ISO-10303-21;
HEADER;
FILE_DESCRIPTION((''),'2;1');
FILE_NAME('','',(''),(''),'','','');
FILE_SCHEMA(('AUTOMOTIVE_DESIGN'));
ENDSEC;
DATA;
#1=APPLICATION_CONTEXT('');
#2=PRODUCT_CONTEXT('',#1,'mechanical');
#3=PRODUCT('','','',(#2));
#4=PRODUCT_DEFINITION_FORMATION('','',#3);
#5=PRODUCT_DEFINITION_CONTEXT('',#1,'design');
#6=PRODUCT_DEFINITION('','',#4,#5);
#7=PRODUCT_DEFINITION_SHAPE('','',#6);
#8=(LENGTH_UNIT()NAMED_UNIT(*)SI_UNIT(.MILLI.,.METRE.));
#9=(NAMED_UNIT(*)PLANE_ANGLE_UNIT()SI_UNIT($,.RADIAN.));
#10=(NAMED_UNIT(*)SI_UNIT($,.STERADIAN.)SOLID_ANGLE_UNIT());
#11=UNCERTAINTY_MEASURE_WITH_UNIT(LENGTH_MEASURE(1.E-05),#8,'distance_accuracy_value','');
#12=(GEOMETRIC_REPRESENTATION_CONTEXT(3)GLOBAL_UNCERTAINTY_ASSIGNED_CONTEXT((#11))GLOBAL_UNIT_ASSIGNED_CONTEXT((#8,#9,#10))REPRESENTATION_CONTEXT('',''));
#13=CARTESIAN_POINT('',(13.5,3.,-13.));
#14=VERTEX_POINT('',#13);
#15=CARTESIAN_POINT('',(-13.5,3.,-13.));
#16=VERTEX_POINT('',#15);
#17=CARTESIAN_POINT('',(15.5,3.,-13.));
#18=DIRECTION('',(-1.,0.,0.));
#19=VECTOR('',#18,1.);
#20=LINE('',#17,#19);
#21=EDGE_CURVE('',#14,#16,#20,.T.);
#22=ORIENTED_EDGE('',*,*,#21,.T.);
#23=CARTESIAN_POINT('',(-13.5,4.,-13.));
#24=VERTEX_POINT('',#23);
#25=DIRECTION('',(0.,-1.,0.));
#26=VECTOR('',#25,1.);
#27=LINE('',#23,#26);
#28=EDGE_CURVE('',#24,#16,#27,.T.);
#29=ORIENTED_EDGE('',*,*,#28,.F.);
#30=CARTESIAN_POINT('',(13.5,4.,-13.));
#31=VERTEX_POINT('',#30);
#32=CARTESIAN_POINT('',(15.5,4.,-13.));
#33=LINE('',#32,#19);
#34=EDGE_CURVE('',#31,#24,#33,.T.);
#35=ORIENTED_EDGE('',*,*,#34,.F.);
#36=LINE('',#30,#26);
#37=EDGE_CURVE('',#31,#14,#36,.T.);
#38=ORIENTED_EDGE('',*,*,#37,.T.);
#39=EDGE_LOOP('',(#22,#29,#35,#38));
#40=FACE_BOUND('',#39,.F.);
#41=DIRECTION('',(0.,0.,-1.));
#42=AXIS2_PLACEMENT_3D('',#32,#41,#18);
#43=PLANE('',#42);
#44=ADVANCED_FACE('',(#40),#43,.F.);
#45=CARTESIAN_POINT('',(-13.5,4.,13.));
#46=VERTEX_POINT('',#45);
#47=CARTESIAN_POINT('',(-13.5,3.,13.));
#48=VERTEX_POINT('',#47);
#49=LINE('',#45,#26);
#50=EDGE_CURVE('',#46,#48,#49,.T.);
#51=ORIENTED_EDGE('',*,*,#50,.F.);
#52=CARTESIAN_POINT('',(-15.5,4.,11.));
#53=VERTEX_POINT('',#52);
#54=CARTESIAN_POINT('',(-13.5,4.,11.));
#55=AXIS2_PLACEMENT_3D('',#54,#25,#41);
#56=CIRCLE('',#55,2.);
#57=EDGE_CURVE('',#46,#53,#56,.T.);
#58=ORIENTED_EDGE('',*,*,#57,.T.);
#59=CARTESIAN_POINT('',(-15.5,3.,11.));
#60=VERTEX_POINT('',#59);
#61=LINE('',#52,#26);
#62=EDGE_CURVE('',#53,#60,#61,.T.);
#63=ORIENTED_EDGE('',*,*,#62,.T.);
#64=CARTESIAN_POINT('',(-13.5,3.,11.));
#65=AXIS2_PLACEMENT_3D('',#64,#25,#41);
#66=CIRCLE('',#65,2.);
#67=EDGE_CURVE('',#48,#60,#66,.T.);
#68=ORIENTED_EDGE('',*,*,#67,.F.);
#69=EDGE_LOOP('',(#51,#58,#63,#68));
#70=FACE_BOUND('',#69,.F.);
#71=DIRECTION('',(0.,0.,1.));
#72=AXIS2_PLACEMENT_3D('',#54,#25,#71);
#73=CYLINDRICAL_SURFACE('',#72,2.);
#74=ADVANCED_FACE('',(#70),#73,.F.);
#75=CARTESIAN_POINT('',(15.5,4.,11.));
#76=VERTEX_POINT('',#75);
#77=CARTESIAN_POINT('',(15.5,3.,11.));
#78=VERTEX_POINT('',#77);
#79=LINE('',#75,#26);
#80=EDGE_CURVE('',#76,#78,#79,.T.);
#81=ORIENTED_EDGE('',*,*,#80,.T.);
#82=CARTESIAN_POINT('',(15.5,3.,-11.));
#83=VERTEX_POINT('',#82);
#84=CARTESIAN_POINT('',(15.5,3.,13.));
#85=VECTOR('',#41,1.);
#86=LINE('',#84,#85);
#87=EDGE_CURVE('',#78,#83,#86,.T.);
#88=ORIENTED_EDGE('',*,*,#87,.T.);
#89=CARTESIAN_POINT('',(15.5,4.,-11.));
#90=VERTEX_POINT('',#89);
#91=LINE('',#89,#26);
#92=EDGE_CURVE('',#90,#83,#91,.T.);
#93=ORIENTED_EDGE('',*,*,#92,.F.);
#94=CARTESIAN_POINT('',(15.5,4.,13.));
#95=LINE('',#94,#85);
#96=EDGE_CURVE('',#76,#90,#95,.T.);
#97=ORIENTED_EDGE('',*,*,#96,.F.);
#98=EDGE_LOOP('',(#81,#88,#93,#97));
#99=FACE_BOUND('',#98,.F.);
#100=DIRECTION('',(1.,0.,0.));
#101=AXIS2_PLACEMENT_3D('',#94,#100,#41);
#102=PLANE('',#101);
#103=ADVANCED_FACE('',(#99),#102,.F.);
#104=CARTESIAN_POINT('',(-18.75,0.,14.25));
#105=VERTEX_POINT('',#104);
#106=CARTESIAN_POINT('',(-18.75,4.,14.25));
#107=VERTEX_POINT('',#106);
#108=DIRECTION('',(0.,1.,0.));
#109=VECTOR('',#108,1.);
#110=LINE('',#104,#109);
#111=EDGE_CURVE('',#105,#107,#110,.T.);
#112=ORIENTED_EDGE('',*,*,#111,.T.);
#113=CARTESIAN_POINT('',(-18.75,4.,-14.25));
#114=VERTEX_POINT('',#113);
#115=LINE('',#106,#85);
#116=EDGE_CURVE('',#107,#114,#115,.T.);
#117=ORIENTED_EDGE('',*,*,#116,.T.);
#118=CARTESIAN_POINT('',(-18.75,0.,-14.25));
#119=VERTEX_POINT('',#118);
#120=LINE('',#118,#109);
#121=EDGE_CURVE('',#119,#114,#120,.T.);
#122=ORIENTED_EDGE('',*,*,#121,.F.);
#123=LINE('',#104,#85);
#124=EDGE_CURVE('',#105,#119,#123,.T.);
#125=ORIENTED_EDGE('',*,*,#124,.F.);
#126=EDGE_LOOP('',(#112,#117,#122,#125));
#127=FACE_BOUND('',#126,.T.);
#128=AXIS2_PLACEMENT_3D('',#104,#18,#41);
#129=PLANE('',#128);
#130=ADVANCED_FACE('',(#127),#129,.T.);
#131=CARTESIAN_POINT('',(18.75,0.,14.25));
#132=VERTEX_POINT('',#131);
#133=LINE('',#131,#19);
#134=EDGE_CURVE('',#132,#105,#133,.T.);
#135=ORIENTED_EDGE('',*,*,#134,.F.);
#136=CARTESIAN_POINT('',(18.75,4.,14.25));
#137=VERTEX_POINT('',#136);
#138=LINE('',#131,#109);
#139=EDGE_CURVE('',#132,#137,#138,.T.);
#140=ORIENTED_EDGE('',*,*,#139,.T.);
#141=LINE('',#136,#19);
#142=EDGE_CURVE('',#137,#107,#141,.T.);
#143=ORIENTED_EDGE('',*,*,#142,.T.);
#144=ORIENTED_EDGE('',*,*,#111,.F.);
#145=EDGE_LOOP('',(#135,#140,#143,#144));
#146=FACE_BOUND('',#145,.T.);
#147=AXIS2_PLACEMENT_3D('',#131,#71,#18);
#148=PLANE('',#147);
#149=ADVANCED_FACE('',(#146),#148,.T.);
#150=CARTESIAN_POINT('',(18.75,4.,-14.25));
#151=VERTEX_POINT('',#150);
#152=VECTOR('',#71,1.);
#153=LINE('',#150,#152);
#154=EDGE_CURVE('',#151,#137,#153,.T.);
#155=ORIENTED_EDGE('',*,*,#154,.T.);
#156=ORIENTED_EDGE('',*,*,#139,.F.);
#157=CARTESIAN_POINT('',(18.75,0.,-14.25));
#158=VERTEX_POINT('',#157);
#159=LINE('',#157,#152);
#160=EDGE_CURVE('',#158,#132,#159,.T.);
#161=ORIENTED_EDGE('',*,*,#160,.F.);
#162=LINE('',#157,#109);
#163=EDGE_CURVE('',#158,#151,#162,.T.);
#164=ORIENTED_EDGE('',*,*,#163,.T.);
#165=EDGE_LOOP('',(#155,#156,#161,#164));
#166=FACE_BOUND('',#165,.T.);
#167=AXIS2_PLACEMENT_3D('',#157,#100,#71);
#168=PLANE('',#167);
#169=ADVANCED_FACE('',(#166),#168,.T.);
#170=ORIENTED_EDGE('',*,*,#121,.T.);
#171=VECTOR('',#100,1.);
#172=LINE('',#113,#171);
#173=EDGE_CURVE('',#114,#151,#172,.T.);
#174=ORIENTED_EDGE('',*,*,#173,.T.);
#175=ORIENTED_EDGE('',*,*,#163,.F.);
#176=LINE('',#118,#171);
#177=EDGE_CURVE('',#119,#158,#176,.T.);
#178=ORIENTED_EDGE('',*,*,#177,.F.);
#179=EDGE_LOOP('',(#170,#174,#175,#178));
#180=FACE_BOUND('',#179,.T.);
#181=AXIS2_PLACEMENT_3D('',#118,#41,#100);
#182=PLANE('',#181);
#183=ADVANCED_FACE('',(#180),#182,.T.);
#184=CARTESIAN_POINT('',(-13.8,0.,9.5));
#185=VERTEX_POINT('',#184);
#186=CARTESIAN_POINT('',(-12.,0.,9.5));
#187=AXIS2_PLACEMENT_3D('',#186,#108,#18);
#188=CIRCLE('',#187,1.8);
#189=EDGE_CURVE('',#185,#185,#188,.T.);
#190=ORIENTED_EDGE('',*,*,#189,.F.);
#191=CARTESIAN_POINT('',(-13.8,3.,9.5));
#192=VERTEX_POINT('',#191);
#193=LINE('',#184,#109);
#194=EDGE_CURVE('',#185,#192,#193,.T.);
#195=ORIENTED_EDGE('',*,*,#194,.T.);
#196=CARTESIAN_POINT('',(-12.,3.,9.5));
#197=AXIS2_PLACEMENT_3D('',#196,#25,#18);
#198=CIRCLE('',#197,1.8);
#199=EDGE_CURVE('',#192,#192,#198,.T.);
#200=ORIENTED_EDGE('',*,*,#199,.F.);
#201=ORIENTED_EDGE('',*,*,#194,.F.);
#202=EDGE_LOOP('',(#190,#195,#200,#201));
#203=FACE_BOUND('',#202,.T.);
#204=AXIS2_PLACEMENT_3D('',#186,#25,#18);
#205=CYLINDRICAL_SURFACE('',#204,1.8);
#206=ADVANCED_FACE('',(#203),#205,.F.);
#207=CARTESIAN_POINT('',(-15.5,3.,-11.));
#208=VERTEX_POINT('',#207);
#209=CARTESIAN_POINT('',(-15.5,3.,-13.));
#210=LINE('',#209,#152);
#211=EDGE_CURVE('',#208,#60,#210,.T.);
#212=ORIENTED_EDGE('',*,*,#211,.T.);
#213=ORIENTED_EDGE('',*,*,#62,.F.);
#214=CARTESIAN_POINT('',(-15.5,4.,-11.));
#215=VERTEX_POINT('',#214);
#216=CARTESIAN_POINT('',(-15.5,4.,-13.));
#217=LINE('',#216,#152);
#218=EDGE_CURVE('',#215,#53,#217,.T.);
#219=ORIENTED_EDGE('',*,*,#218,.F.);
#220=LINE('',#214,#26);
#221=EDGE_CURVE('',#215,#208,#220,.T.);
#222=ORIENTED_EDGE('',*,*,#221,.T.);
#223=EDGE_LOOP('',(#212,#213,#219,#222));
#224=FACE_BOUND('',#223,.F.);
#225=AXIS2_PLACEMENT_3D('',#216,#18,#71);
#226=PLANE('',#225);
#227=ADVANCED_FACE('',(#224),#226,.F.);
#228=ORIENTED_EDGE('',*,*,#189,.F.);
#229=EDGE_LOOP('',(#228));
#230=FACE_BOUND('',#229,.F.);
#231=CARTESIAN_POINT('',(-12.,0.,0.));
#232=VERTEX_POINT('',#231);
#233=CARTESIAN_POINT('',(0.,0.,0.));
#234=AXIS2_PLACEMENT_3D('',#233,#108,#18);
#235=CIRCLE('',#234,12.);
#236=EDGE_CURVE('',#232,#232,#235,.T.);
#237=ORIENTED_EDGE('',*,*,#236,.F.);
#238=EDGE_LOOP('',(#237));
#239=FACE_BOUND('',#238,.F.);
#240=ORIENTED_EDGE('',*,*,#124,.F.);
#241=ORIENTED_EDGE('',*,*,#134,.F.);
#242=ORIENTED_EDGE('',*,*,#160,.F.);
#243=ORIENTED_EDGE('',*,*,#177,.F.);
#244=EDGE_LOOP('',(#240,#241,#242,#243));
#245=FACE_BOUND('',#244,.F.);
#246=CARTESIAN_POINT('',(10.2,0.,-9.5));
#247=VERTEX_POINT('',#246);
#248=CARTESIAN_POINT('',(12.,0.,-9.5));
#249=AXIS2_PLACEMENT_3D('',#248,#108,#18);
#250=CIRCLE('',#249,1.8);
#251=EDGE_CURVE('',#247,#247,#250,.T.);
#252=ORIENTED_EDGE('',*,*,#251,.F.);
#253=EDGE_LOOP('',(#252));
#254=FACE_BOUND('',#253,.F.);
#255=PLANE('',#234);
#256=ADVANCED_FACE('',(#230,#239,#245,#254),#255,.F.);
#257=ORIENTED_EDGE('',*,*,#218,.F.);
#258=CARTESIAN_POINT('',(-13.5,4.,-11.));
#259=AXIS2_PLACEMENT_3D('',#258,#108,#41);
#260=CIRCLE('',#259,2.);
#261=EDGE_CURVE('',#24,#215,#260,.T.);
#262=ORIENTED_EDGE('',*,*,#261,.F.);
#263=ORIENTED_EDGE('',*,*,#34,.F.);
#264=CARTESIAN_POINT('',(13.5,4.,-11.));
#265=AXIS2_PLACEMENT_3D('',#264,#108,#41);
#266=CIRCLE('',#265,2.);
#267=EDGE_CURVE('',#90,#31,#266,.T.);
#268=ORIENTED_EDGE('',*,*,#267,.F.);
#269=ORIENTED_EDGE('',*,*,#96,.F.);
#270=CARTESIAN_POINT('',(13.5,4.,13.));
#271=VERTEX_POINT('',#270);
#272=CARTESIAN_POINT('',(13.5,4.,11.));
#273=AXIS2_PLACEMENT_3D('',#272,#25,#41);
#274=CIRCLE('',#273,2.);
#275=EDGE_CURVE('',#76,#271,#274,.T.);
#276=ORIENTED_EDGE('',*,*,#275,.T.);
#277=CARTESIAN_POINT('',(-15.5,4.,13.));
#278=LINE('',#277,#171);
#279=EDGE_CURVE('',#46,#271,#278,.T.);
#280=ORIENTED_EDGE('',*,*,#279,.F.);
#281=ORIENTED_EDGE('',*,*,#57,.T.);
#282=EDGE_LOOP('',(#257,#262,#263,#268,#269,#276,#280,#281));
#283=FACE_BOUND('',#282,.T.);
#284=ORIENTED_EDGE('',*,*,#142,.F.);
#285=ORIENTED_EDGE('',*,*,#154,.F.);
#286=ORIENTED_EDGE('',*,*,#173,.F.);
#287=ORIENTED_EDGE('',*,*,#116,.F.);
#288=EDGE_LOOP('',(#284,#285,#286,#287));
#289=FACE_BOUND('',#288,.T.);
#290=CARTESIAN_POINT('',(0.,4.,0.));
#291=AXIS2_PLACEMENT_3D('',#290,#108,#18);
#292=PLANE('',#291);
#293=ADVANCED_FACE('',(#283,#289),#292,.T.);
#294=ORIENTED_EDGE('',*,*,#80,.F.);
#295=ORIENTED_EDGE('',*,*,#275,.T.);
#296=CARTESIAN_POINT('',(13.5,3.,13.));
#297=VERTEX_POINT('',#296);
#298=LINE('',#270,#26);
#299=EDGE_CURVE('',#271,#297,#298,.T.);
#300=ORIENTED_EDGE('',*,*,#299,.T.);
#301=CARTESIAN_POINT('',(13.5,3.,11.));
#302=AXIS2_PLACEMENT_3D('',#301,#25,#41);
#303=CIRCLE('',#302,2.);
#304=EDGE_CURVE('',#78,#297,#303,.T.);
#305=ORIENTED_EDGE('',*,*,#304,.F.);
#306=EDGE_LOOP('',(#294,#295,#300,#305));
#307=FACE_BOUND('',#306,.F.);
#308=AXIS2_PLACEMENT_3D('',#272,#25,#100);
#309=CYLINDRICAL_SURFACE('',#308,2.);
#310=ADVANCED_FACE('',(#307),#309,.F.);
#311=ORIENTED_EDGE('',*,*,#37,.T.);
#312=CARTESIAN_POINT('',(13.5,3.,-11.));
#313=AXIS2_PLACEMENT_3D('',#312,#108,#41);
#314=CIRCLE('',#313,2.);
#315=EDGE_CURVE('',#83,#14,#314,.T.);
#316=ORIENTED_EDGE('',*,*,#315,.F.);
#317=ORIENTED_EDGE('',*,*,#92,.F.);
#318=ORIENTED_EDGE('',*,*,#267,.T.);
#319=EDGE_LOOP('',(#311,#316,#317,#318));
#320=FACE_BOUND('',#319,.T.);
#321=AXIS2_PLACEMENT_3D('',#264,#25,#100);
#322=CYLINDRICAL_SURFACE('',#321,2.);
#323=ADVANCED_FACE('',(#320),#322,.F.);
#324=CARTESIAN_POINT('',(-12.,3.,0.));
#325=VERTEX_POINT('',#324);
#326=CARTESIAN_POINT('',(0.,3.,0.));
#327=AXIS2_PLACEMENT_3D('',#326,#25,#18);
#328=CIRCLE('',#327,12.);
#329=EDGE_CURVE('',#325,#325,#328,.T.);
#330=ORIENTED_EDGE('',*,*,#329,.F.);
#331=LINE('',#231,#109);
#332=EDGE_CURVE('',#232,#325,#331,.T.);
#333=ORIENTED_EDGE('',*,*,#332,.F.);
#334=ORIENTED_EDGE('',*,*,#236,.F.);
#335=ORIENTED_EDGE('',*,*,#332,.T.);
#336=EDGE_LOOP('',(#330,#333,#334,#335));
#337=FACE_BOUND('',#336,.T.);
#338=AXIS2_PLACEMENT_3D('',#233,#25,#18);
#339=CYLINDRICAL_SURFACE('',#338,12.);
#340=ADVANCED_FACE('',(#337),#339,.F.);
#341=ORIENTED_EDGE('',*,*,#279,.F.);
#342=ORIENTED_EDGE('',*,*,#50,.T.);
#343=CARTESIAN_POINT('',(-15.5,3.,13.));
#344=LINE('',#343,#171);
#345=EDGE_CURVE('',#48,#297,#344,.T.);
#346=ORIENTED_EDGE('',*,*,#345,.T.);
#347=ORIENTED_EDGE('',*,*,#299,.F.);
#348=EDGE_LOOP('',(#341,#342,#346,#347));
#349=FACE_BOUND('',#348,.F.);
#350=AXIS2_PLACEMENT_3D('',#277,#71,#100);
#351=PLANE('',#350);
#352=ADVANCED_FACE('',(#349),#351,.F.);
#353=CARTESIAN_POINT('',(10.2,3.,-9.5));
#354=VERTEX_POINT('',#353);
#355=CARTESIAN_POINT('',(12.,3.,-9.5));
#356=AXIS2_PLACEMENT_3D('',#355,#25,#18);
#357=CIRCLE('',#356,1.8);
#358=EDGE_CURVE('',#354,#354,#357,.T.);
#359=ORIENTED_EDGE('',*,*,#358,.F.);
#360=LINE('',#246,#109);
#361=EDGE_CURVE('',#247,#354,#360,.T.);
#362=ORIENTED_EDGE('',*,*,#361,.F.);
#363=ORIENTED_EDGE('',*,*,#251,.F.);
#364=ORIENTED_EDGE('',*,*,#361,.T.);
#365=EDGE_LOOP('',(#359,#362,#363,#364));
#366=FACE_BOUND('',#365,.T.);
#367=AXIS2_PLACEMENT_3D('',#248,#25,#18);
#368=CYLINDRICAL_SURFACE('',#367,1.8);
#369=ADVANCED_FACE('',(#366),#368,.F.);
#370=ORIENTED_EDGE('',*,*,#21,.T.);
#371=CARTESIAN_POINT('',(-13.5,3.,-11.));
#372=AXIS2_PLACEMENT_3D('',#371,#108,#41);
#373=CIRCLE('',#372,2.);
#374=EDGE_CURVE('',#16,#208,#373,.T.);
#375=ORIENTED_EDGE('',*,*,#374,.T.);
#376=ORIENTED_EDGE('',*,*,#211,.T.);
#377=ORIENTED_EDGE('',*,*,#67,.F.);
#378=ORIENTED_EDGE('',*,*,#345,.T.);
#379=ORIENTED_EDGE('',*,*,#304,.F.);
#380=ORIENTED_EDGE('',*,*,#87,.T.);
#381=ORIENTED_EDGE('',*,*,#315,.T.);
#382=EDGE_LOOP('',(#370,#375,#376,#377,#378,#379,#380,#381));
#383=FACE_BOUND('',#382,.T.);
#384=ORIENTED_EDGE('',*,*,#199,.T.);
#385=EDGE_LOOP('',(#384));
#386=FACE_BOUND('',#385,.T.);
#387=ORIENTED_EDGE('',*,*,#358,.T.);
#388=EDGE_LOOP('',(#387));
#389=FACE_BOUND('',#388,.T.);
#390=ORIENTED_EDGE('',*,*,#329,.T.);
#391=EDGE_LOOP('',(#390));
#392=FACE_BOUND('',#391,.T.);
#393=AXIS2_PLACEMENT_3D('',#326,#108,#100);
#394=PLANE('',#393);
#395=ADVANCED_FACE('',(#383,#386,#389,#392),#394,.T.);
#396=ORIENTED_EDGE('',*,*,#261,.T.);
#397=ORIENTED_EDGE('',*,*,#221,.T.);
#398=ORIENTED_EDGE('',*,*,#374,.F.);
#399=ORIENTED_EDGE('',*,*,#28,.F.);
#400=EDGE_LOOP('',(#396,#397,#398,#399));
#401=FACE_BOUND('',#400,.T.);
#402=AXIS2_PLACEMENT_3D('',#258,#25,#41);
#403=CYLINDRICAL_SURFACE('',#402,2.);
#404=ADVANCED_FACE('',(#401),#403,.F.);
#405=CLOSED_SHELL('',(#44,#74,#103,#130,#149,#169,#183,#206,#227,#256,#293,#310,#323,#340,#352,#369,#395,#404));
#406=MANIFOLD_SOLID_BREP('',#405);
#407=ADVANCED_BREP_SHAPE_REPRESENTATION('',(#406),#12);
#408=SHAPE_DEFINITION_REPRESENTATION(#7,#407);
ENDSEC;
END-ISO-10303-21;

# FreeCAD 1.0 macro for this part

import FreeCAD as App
import Part
import Sketcher

V = App.Vector
Q = App.Units.Quantity


def edges_at(feature, points):
    """Names of the edges that pass closest to the given points."""
    edges = feature.Shape.Edges
    near = lambda p: min(range(len(edges)), key=lambda i: edges[i].distToShape(Part.Vertex(*p))[0])
    return sorted({f"Edge{near(p) + 1}" for p in points})

doc = App.newDocument("Part")
params = doc.addObject("Spreadsheet::Sheet", "Params")
for row, (alias, value) in enumerate([
    ("sketch1_diameter", "24 mm"),
    ("sketch1_diameter2", "3.6 mm"),
    ("sketch1_width", "37.5 mm"),
    ("sketch1_height", "28.5 mm"),
    ("pad1_length", "4 mm"),
    ("sketch2_width", "31 mm"),
    ("sketch2_height", "26 mm"),
    ("pocket1_length", "1 mm"),
    ("fillet_radius", "2 mm"),
], start=1):
    params.set(f"A{row}", alias)
    params.set(f"B{row}", "=" + value)
    params.setAlias(f"B{row}", alias)

body = doc.addObject("PartDesign::Body", "Body")

sketch1 = doc.addObject("Sketcher::SketchObject", "Sketch")
body.addObject(sketch1)
sketch1.AttachmentSupport = (doc.XZ_Plane, [""])
sketch1.MapMode = "FlatFace"
sketch1.addGeometry(Part.LineSegment(V(18.8, -14.2, 0), V(-18.8, -14.2, 0)), False)
sketch1.addGeometry(Part.LineSegment(V(-18.8, -14.2, 0), V(-18.8, 14.2, 0)), False)
sketch1.addGeometry(Part.LineSegment(V(-18.8, 14.2, 0), V(18.8, 14.2, 0)), False)
sketch1.addGeometry(Part.LineSegment(V(18.8, 14.2, 0), V(18.8, -14.2, 0)), False)
sketch1.addGeometry(Part.Circle(V(12, -9.5, 0), V(0, 0, 1), 1.8), False)
sketch1.addGeometry(Part.Circle(V(0, 0, 0), V(0, 0, 1), 12), False)
sketch1.addGeometry(Part.Circle(V(-12, 9.5, 0), V(0, 0, 1), 1.8), False)
sketch1.addConstraint(Sketcher.Constraint("Coincident", 0, 2, 1, 1))
sketch1.addConstraint(Sketcher.Constraint("Coincident", 1, 2, 2, 1))
sketch1.addConstraint(Sketcher.Constraint("Coincident", 2, 2, 3, 1))
sketch1.addConstraint(Sketcher.Constraint("Coincident", 3, 2, 0, 1))
sketch1.addConstraint(Sketcher.Constraint("Horizontal", 0))
sketch1.addConstraint(Sketcher.Constraint("Vertical", 1))
sketch1.addConstraint(Sketcher.Constraint("Horizontal", 2))
sketch1.addConstraint(Sketcher.Constraint("Vertical", 3))
sketch1.addConstraint(Sketcher.Constraint("Coincident", 5, 3, -1, 1))
sketch1.addConstraint(Sketcher.Constraint("Equal", 4, 6))
sketch1.addConstraint(Sketcher.Constraint("Symmetric", 4, 3, 6, 3, -1, 1))
sketch1.addConstraint(Sketcher.Constraint("Symmetric", 0, 2, 2, 2, -1, 1))
sketch1.addConstraint(Sketcher.Constraint("Diameter", 5, Q("24 mm")))
sketch1.addConstraint(Sketcher.Constraint("Diameter", 4, Q("3.6 mm")))
sketch1.addConstraint(Sketcher.Constraint("DistanceX", 0, 2, 0, 1, Q("37.5 mm")))
sketch1.addConstraint(Sketcher.Constraint("DistanceY", 1, 1, 1, 2, Q("28.5 mm")))
sketch1.addConstraint(Sketcher.Constraint("DistanceX", -1, 1, 4, 3, Q("12 mm")))
sketch1.addConstraint(Sketcher.Constraint("DistanceY", 4, 3, -1, 1, Q("9.5 mm")))
sketch1.setExpression("Constraints[12]", "Params.sketch1_diameter")
sketch1.setExpression("Constraints[13]", "Params.sketch1_diameter2")
sketch1.setExpression("Constraints[14]", "Params.sketch1_width")
sketch1.setExpression("Constraints[15]", "Params.sketch1_height")
pad1 = doc.addObject("PartDesign::Pad", "Pad")
body.addObject(pad1)
pad1.Profile = sketch1
pad1.setExpression("Length", "Params.pad1_length")
pad1.Reversed = True

sketch2 = doc.addObject("Sketcher::SketchObject", "Sketch001")
body.addObject(sketch2)
sketch2.AttachmentSupport = (doc.XZ_Plane, [""])
sketch2.MapMode = "FlatFace"
sketch2.AttachmentOffset = App.Placement(V(0, 0, -4), App.Rotation())
sketch2.addGeometry(Part.LineSegment(V(16, 13, 0), V(16, -13, 0)), False)
sketch2.addGeometry(Part.LineSegment(V(16, -13, 0), V(-16, -13, 0)), False)
sketch2.addGeometry(Part.LineSegment(V(-16, -13, 0), V(-16, 13, 0)), False)
sketch2.addGeometry(Part.LineSegment(V(-16, 13, 0), V(16, 13, 0)), False)
sketch2.addConstraint(Sketcher.Constraint("Coincident", 0, 2, 1, 1))
sketch2.addConstraint(Sketcher.Constraint("Coincident", 1, 2, 2, 1))
sketch2.addConstraint(Sketcher.Constraint("Coincident", 2, 2, 3, 1))
sketch2.addConstraint(Sketcher.Constraint("Coincident", 3, 2, 0, 1))
sketch2.addConstraint(Sketcher.Constraint("Vertical", 0))
sketch2.addConstraint(Sketcher.Constraint("Horizontal", 1))
sketch2.addConstraint(Sketcher.Constraint("Vertical", 2))
sketch2.addConstraint(Sketcher.Constraint("Horizontal", 3))
sketch2.addConstraint(Sketcher.Constraint("Symmetric", 0, 2, 2, 2, -1, 1))
sketch2.addConstraint(Sketcher.Constraint("DistanceX", 1, 2, 1, 1, Q("31 mm")))
sketch2.addConstraint(Sketcher.Constraint("DistanceY", 0, 2, 0, 1, Q("26 mm")))
sketch2.setExpression("Constraints[9]", "Params.sketch2_width")
sketch2.setExpression("Constraints[10]", "Params.sketch2_height")
pocket1 = doc.addObject("PartDesign::Pocket", "Pocket")
body.addObject(pocket1)
pocket1.Profile = sketch2
pocket1.setExpression("Length", "Params.pocket1_length")
pocket1.Reversed = True
doc.recompute()

fillet = doc.addObject("PartDesign::Fillet", "Fillet")
body.addObject(fillet)
fillet.Base = (pocket1, edges_at(pocket1, [
    (-15.5, 3.5, -13),
    (-15.5, 3.5, 13),
    (15.5, 3.5, 13),
    (15.5, 3.5, -13),
]))
fillet.setExpression("Radius", "Params.fillet_radius")

doc.recompute()
